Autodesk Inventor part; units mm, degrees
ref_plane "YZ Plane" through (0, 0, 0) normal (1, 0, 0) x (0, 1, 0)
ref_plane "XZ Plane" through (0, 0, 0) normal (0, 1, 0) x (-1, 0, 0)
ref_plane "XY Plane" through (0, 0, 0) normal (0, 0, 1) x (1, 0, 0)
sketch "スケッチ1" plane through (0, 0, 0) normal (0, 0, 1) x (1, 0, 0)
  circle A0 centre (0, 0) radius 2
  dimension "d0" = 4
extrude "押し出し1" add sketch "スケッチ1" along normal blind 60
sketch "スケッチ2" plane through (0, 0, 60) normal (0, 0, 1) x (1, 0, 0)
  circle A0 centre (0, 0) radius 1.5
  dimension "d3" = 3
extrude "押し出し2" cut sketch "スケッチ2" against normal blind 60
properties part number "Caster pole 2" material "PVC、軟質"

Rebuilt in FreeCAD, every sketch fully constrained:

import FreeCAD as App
import Part
import Sketcher

V = App.Vector
Q = App.Units.Quantity

doc = App.newDocument("Part")
body = doc.addObject("PartDesign::Body", "Body")

sketch1 = doc.addObject("Sketcher::SketchObject", "Sketch")
body.addObject(sketch1)
sketch1.AttachmentSupport = (doc.XY_Plane, [""])
sketch1.MapMode = "FlatFace"
sketch1.addGeometry(Part.Circle(V(0, 0, 0), V(0, 0, 1), 2), False)
sketch1.addConstraint([
    Sketcher.Constraint("Coincident", 0, 3, -1, 1),
    Sketcher.Constraint("Diameter", 0, Q("4 mm")),
])
pad1 = doc.addObject("PartDesign::Pad", "Pad")
body.addObject(pad1)
pad1.Profile = sketch1
pad1.Length = 60

sketch2 = doc.addObject("Sketcher::SketchObject", "Sketch001")
body.addObject(sketch2)
sketch2.AttachmentSupport = (doc.XY_Plane, [""])
sketch2.MapMode = "FlatFace"
sketch2.AttachmentOffset = App.Placement(V(0, 0, 60), App.Rotation())
sketch2.addGeometry(Part.Circle(V(0, 0, 0), V(0, 0, 1), 1.5), False)
sketch2.addConstraint([
    Sketcher.Constraint("Coincident", 0, 3, -1, 1),
    Sketcher.Constraint("Diameter", 0, Q("3 mm")),
])
pocket1 = doc.addObject("PartDesign::Pocket", "Pocket")
body.addObject(pocket1)
pocket1.Profile = sketch2
pocket1.Length = 60

doc.recompute()
